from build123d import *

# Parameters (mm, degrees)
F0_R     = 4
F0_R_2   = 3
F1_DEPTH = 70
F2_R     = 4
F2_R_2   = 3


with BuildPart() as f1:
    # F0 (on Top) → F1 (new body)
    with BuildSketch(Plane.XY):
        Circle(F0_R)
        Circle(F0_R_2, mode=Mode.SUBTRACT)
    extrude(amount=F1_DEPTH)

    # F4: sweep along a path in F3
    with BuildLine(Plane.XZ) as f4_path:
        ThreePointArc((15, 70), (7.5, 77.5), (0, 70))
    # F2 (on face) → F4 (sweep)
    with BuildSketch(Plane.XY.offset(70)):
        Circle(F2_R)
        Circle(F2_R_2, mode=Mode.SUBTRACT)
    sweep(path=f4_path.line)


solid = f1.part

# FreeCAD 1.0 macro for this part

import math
import FreeCAD as App
import Part
import Sketcher

V = App.Vector
Q = App.Units.Quantity

doc = App.newDocument("Part")
params = doc.addObject("Spreadsheet::Sheet", "Params")
for row, (alias, value) in enumerate([
    ("sketch1_diameter", "8 mm"),
    ("sketch1_diameter2", "6 mm"),
    ("pad1_length", "70 mm"),
    ("sketch2_diameter", "8 mm"),
    ("sketch2_diameter2", "6 mm"),
    ("sketch3_radius", "7.5 mm"),
], start=1):
    params.set(f"A{row}", alias)
    params.set(f"B{row}", "=" + value)
    params.setAlias(f"B{row}", alias)

body = doc.addObject("PartDesign::Body", "Body")

sketch1 = body.newObject("Sketcher::SketchObject", "Sketch")
sketch1.AttachmentSupport = (doc.getObject("XY_Plane"), [""])
sketch1.MapMode = "FlatFace"
sketch1.addGeometry([
    Part.Circle(V(0, 0, 0), V(0, 0, 1), 4),
    Part.Circle(V(0, 0, 0), V(0, 0, 1), 3),
], False)
sketch1.addConstraint([
    Sketcher.Constraint("Coincident", 0, 3, -1, 1),
    Sketcher.Constraint("Coincident", 1, 3, -1, 1),
    Sketcher.Constraint("Diameter", 0, Q("8 mm")),
    Sketcher.Constraint("Diameter", 1, Q("6 mm")),
])
sketch1.setExpression("Constraints[2]", "Params.sketch1_diameter")
sketch1.setExpression("Constraints[3]", "Params.sketch1_diameter2")
pad1 = body.newObject("PartDesign::Pad", "Pad")
pad1.Profile = sketch1
pad1.setExpression("Length", "Params.pad1_length")

sketch2 = body.newObject("Sketcher::SketchObject", "Sketch001")
sketch2.AttachmentSupport = (doc.getObject("XY_Plane"), [""])
sketch2.MapMode = "FlatFace"
sketch2.AttachmentOffset = App.Placement(V(0, 0, 70), App.Rotation())
sketch2.addGeometry([
    Part.Circle(V(0, 0, 0), V(0, 0, 1), 4),
    Part.Circle(V(0, 0, 0), V(0, 0, 1), 3),
], False)
sketch2.addConstraint([
    Sketcher.Constraint("Coincident", 0, 3, -1, 1),
    Sketcher.Constraint("Coincident", 1, 3, -1, 1),
    Sketcher.Constraint("Diameter", 0, Q("8 mm")),
    Sketcher.Constraint("Diameter", 1, Q("6 mm")),
])
sketch2.setExpression("Constraints[2]", "Params.sketch2_diameter")
sketch2.setExpression("Constraints[3]", "Params.sketch2_diameter2")

sketch3 = body.newObject("Sketcher::SketchObject", "Sketch002")
sketch3.AttachmentSupport = (doc.getObject("XZ_Plane"), [""])
sketch3.MapMode = "FlatFace"
sketch3.addGeometry(Part.ArcOfCircle(Part.Circle(V(7.5, 70, 0), V(0, 0, 1), 7.5), math.radians(0), math.radians(180)), False)
sketch3.addConstraint([
    Sketcher.Constraint("PointOnObject", 0, 2, -2),
    Sketcher.Constraint("Radius", 0, Q("7.5 mm")),
    Sketcher.Constraint("DistanceY", -1, 1, 0, 3, Q("70 mm")),
    Sketcher.Constraint("DistanceY", -1, 1, 0, 1, Q("70 mm")),
    Sketcher.Constraint("DistanceY", -1, 1, 0, 2, Q("70 mm")),
])
sketch3.setExpression("Constraints[1]", "Params.sketch3_radius")
doc.recompute()

additivepipe = body.newObject("PartDesign::AdditivePipe", "AdditivePipe")
additivepipe.Profile = sketch2
additivepipe.Spine = (sketch3, ["Edge1"])

doc.recompute()
